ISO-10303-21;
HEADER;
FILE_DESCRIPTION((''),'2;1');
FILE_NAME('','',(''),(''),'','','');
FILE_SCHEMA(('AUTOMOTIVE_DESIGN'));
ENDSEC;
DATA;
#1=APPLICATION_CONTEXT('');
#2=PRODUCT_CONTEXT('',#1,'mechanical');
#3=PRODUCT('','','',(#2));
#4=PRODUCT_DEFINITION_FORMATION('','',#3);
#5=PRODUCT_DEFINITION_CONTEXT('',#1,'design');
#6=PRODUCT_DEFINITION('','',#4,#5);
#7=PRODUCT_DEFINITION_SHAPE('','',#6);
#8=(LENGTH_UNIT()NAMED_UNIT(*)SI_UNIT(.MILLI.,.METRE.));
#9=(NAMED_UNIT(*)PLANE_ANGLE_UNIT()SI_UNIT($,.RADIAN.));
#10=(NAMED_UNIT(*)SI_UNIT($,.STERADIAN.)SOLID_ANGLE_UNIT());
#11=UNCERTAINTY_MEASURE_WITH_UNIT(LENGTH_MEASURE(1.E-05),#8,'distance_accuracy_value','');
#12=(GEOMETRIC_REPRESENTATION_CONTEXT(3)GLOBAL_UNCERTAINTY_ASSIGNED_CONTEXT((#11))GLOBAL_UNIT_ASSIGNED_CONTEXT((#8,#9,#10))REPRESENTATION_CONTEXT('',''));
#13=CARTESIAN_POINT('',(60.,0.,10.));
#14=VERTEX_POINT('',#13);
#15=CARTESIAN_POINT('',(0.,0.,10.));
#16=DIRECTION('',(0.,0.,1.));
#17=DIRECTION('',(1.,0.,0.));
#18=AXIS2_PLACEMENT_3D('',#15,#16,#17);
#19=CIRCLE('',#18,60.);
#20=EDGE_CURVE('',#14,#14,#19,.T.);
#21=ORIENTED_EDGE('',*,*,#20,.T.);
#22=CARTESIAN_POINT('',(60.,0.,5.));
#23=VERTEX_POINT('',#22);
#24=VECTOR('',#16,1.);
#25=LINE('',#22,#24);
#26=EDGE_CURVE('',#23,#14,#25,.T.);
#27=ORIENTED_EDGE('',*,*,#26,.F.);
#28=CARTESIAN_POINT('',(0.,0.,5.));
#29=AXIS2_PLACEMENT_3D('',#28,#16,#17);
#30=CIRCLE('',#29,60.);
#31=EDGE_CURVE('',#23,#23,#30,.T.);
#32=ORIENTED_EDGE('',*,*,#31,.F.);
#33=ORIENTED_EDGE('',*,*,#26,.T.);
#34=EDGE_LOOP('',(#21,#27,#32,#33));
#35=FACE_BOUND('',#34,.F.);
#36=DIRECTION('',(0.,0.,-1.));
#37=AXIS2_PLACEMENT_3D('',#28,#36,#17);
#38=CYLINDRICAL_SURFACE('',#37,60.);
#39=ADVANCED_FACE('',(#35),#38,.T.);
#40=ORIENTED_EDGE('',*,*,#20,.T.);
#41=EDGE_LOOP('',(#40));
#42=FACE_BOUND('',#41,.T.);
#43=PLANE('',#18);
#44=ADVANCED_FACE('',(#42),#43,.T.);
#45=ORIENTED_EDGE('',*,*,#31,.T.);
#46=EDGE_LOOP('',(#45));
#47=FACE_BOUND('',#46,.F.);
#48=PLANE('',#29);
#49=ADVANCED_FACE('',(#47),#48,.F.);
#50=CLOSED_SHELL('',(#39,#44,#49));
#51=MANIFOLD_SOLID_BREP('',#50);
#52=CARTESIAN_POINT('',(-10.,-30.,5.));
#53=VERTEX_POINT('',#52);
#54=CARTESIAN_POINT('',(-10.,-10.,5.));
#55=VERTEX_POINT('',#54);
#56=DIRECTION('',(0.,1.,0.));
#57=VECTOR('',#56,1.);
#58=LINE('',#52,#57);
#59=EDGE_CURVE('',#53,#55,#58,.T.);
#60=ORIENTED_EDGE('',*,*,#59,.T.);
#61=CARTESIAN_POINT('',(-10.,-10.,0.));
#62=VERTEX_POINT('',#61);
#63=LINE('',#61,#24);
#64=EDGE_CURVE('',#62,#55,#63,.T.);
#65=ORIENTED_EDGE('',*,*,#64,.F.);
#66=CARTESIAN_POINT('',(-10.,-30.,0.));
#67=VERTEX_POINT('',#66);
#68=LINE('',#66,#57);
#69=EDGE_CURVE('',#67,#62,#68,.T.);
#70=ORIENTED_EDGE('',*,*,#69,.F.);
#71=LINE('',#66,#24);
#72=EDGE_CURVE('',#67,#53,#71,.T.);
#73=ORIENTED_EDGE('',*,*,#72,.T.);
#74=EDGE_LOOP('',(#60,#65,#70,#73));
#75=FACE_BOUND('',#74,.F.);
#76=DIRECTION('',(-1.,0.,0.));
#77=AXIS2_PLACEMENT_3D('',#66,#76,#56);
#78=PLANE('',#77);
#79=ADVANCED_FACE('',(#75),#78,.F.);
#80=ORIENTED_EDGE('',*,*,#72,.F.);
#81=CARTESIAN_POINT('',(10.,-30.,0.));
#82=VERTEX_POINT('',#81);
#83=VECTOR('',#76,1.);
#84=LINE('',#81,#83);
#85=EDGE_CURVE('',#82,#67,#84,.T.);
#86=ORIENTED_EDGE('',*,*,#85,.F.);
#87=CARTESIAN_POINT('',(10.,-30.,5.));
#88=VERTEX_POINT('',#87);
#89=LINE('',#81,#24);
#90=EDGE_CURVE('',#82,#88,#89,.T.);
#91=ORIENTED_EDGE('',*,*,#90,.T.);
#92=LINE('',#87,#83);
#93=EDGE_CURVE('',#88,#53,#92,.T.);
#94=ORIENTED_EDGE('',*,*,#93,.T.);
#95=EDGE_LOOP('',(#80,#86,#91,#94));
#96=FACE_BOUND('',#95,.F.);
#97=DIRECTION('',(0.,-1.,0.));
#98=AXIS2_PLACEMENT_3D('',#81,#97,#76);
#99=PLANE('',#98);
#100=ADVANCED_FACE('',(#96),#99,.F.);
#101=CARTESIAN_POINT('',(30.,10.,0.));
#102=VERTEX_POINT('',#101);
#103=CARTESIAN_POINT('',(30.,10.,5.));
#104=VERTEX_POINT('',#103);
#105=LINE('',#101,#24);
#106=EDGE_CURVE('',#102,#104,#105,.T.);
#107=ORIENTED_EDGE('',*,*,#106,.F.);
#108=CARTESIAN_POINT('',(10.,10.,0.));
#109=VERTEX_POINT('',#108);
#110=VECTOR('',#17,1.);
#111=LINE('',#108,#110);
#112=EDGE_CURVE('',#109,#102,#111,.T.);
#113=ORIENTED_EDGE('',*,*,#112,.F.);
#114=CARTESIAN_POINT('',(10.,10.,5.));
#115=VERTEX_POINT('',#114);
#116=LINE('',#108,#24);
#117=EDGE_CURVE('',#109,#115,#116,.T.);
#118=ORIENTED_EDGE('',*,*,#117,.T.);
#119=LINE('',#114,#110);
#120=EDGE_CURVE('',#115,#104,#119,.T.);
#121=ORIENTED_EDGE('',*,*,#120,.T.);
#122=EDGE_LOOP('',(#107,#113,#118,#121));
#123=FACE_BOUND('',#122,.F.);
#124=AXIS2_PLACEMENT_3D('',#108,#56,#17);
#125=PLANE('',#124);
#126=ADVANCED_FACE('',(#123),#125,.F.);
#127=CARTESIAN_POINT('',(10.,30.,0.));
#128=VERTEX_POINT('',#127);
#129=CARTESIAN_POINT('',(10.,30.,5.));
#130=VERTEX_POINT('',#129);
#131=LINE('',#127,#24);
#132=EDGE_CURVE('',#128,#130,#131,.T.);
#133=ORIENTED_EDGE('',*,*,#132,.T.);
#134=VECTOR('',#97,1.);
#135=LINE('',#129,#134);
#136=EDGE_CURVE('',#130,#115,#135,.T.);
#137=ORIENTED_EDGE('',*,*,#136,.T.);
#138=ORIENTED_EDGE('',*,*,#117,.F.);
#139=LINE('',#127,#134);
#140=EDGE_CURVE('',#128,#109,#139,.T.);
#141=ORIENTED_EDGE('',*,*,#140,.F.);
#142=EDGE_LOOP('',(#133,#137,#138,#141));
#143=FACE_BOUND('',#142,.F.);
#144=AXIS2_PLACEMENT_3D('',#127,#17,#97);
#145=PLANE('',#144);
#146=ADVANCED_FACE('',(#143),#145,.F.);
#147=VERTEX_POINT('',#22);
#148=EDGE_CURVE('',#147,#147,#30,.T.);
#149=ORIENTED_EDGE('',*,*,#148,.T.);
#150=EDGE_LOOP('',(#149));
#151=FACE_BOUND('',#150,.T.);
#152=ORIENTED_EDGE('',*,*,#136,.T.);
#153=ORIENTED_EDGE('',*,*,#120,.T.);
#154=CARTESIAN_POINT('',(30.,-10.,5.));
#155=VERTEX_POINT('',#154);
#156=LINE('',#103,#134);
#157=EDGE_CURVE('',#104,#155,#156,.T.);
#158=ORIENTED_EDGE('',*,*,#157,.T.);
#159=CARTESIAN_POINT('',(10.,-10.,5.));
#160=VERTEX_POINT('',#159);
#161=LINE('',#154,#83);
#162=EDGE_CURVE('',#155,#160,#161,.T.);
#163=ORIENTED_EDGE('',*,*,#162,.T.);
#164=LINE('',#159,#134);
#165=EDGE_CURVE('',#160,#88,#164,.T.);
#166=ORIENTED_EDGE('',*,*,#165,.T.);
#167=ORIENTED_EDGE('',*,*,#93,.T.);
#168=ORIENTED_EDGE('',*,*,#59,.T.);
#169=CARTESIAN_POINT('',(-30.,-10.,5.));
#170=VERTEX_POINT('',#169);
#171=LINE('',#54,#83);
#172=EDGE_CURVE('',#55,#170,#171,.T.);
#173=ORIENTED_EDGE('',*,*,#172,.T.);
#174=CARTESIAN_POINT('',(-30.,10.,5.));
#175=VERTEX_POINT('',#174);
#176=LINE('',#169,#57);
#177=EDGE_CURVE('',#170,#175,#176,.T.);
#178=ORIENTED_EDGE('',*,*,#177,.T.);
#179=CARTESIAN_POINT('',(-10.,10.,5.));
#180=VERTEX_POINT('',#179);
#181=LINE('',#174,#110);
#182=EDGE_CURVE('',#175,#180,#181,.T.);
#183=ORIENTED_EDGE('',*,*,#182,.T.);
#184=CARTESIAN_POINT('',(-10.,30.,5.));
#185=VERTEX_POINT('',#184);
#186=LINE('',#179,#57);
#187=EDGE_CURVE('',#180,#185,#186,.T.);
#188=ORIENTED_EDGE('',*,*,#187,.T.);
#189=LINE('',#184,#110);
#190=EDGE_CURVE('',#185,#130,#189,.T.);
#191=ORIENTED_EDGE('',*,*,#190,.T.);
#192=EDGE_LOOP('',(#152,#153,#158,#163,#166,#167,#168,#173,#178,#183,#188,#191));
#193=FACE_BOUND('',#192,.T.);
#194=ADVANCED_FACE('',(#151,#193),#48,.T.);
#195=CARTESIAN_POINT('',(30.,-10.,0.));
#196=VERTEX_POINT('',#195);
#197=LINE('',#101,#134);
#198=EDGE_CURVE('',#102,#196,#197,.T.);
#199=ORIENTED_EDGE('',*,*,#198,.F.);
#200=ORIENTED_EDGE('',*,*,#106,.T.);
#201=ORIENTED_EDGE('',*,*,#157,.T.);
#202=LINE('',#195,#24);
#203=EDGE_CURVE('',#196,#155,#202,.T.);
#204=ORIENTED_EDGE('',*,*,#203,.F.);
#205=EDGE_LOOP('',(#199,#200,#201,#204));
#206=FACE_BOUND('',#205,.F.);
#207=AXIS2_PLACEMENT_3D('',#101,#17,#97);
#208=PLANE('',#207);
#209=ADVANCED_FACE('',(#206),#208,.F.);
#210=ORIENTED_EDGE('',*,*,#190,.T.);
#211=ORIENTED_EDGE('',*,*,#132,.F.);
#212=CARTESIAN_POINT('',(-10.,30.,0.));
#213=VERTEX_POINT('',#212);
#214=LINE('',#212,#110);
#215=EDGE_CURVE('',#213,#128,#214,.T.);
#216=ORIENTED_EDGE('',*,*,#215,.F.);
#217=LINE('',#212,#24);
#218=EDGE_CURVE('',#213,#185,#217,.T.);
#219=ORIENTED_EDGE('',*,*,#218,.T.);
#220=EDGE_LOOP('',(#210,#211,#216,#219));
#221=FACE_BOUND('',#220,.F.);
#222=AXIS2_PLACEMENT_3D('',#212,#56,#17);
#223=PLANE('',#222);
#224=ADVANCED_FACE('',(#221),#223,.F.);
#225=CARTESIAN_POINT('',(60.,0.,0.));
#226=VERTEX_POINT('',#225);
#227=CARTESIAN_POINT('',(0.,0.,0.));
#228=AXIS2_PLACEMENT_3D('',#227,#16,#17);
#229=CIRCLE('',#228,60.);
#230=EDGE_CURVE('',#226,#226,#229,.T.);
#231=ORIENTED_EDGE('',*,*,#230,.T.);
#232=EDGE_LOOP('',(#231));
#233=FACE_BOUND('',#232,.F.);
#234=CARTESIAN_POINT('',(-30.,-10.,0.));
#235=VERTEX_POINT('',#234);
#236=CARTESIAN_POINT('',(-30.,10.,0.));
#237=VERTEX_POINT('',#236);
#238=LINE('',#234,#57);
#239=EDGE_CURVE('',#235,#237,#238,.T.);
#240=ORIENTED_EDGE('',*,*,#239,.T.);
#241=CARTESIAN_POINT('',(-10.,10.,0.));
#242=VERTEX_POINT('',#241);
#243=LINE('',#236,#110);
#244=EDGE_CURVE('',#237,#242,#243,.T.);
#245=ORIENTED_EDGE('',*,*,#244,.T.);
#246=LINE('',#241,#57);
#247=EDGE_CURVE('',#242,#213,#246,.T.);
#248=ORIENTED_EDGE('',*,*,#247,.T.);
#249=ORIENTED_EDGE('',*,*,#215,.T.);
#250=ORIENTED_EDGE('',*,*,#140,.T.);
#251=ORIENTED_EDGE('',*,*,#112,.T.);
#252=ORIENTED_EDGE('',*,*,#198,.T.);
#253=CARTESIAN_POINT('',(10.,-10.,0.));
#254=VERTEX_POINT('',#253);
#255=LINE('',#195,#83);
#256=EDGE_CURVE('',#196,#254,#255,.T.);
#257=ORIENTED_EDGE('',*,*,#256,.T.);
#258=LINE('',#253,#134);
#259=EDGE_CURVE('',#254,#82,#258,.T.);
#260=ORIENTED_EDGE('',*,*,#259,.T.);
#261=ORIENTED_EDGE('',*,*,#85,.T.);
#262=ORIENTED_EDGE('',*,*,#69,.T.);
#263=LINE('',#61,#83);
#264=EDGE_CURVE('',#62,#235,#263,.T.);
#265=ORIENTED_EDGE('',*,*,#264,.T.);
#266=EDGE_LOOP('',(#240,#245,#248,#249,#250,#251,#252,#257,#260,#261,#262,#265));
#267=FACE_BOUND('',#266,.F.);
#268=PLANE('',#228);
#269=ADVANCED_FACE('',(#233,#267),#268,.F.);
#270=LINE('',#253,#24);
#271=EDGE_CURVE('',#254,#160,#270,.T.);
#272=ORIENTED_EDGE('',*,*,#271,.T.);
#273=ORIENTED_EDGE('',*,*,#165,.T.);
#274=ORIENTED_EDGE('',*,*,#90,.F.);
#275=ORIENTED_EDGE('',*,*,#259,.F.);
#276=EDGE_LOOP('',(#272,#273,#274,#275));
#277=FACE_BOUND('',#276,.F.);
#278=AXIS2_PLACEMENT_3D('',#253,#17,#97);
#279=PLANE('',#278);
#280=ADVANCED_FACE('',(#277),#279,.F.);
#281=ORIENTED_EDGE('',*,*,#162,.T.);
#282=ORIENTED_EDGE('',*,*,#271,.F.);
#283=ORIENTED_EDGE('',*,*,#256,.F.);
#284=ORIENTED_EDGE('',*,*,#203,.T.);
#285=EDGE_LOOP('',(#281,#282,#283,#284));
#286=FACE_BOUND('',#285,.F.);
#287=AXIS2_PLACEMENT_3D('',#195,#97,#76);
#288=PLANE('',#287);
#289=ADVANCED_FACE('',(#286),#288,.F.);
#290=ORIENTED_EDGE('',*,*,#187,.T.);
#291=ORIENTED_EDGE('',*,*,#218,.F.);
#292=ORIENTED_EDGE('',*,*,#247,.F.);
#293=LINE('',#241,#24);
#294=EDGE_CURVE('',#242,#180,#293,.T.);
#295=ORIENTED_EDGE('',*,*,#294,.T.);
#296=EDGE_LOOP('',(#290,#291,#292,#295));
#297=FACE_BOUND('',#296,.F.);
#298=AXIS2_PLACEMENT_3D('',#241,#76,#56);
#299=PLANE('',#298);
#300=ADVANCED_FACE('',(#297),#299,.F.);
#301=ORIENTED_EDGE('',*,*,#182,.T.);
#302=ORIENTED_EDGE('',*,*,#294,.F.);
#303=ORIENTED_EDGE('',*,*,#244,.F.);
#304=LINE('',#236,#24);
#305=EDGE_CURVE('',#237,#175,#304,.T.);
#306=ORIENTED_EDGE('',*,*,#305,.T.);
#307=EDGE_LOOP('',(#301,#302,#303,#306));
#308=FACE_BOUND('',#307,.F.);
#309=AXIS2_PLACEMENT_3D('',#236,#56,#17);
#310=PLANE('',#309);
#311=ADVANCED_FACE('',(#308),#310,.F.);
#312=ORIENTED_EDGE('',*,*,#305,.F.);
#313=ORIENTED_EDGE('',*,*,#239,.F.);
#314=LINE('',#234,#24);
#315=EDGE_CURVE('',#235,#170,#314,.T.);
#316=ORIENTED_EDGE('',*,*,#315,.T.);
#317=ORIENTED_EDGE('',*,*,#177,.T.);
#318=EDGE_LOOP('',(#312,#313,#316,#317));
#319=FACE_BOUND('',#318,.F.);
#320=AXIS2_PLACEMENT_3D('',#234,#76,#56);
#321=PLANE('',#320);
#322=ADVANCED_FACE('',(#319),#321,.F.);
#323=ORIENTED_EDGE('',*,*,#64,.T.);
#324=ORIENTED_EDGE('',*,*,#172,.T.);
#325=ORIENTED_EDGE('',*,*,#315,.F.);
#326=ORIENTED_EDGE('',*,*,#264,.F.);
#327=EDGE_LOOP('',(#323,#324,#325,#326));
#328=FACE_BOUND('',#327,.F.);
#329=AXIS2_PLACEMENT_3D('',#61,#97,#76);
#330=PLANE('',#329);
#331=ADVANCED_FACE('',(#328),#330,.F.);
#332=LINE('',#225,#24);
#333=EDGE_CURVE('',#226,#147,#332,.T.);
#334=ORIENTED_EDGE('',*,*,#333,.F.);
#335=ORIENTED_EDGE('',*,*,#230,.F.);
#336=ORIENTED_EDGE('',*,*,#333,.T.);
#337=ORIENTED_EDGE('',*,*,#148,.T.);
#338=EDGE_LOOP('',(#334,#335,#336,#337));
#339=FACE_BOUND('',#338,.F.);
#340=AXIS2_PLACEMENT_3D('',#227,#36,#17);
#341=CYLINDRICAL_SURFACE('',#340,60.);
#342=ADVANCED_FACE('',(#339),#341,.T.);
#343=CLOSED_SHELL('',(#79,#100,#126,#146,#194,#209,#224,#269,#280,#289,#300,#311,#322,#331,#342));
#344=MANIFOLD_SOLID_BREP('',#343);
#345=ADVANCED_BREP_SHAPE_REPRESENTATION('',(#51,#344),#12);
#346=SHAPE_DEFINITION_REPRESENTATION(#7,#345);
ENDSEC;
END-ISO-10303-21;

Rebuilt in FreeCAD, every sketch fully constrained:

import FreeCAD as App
import Part
import Sketcher

V = App.Vector
Q = App.Units.Quantity

doc = App.newDocument("Part")
body = doc.addObject("PartDesign::Body", "Body")

# Sketch on XY plane
sketch1 = body.newObject("Sketcher::SketchObject", "Sketch")
sketch1.AttachmentSupport = (doc.getObject("XY_Plane"), [""])
sketch1.MapMode = "FlatFace"
sketch1.addGeometry([
    Part.Circle(V(0, 0, 0), V(0, 0, 1), 60),  # 0
    Part.LineSegment(V(-10, 10, 0), V(-10, 30, 0)),  # 1
    Part.LineSegment(V(-10, 30, 0), V(10, 30, 0)),  # 2
    Part.LineSegment(V(10, 30, 0), V(10, 10, 0)),  # 3
    Part.LineSegment(V(10, 10, 0), V(30, 10, 0)),  # 4
    Part.LineSegment(V(30, 10, 0), V(30, -10, 0)),  # 5
    Part.LineSegment(V(30, -10, 0), V(10, -10, 0)),  # 6
    Part.LineSegment(V(10, -10, 0), V(10, -30, 0)),  # 7
    Part.LineSegment(V(10, -30, 0), V(-10, -30, 0)),  # 8
    Part.LineSegment(V(-10, -30, 0), V(-10, -10, 0)),  # 9
    Part.LineSegment(V(-10, -10, 0), V(-30, -10, 0)),  # 10
    Part.LineSegment(V(-30, -10, 0), V(-30, 10, 0)),  # 11
    Part.LineSegment(V(-30, 10, 0), V(-10, 10, 0)),  # 12
], False)
sketch1.addConstraint([
    Sketcher.Constraint("Coincident", 1, 2, 2, 1),
    Sketcher.Constraint("Coincident", 2, 2, 3, 1),
    Sketcher.Constraint("Coincident", 3, 2, 4, 1),
    Sketcher.Constraint("Coincident", 4, 2, 5, 1),
    Sketcher.Constraint("Coincident", 5, 2, 6, 1),
    Sketcher.Constraint("Coincident", 6, 2, 7, 1),
    Sketcher.Constraint("Coincident", 7, 2, 8, 1),
    Sketcher.Constraint("Coincident", 8, 2, 9, 1),
    Sketcher.Constraint("Coincident", 9, 2, 10, 1),
    Sketcher.Constraint("Coincident", 10, 2, 11, 1),
    Sketcher.Constraint("Coincident", 11, 2, 12, 1),
    Sketcher.Constraint("Coincident", 12, 2, 1, 1),
    Sketcher.Constraint("Vertical", 1),
    Sketcher.Constraint("Horizontal", 2),
    Sketcher.Constraint("Vertical", 3),
    Sketcher.Constraint("Horizontal", 4),
    Sketcher.Constraint("Vertical", 5),
    Sketcher.Constraint("Horizontal", 6),
    Sketcher.Constraint("Vertical", 7),
    Sketcher.Constraint("Horizontal", 8),
    Sketcher.Constraint("Vertical", 9),
    Sketcher.Constraint("Horizontal", 10),
    Sketcher.Constraint("Vertical", 11),
    Sketcher.Constraint("Horizontal", 12),
    Sketcher.Constraint("Coincident", 0, 3, -1, 1),
    Sketcher.Constraint("Symmetric", 1, 2, 7, 2, -1, 1),
    Sketcher.Constraint("Symmetric", 3, 2, 9, 2, -1, 1),
    Sketcher.Constraint("Symmetric", 5, 2, 11, 2, -1, 1),
    Sketcher.Constraint("Symmetric", 6, 2, 9, 2, -2),
    Sketcher.Constraint("Equal", 2, 4),
    Sketcher.Constraint("Equal", 12, 1),
    Sketcher.Constraint("Equal", 3, 5),
    Sketcher.Constraint("Diameter", 0, Q("120 mm")),
    Sketcher.Constraint("DistanceX", 2, 1, 2, 2, Q("20 mm")),
])
pad1 = body.newObject("PartDesign::Pad", "Pad")
pad1.Profile = sketch1
pad1.Length = 5
body2 = doc.addObject("PartDesign::Body", "Body001")

# Sketch on XY plane
sketch2 = body2.newObject("Sketcher::SketchObject", "Sketch001")
sketch2.AttachmentSupport = (doc.getObject("XY_Plane001"), [""])
sketch2.MapMode = "FlatFace"
sketch2.AttachmentOffset = App.Placement(V(0, 0, 5), App.Rotation())
sketch2.addGeometry(Part.Circle(V(0, 0, 0), V(0, 0, 1), 60), False)
sketch2.addConstraint([
    Sketcher.Constraint("Coincident", 0, 3, -1, 1),
    Sketcher.Constraint("Diameter", 0, Q("120 mm")),
])
pad2 = body2.newObject("PartDesign::Pad", "Pad001")
pad2.Profile = sketch2
pad2.Length = 5

doc.recompute()
